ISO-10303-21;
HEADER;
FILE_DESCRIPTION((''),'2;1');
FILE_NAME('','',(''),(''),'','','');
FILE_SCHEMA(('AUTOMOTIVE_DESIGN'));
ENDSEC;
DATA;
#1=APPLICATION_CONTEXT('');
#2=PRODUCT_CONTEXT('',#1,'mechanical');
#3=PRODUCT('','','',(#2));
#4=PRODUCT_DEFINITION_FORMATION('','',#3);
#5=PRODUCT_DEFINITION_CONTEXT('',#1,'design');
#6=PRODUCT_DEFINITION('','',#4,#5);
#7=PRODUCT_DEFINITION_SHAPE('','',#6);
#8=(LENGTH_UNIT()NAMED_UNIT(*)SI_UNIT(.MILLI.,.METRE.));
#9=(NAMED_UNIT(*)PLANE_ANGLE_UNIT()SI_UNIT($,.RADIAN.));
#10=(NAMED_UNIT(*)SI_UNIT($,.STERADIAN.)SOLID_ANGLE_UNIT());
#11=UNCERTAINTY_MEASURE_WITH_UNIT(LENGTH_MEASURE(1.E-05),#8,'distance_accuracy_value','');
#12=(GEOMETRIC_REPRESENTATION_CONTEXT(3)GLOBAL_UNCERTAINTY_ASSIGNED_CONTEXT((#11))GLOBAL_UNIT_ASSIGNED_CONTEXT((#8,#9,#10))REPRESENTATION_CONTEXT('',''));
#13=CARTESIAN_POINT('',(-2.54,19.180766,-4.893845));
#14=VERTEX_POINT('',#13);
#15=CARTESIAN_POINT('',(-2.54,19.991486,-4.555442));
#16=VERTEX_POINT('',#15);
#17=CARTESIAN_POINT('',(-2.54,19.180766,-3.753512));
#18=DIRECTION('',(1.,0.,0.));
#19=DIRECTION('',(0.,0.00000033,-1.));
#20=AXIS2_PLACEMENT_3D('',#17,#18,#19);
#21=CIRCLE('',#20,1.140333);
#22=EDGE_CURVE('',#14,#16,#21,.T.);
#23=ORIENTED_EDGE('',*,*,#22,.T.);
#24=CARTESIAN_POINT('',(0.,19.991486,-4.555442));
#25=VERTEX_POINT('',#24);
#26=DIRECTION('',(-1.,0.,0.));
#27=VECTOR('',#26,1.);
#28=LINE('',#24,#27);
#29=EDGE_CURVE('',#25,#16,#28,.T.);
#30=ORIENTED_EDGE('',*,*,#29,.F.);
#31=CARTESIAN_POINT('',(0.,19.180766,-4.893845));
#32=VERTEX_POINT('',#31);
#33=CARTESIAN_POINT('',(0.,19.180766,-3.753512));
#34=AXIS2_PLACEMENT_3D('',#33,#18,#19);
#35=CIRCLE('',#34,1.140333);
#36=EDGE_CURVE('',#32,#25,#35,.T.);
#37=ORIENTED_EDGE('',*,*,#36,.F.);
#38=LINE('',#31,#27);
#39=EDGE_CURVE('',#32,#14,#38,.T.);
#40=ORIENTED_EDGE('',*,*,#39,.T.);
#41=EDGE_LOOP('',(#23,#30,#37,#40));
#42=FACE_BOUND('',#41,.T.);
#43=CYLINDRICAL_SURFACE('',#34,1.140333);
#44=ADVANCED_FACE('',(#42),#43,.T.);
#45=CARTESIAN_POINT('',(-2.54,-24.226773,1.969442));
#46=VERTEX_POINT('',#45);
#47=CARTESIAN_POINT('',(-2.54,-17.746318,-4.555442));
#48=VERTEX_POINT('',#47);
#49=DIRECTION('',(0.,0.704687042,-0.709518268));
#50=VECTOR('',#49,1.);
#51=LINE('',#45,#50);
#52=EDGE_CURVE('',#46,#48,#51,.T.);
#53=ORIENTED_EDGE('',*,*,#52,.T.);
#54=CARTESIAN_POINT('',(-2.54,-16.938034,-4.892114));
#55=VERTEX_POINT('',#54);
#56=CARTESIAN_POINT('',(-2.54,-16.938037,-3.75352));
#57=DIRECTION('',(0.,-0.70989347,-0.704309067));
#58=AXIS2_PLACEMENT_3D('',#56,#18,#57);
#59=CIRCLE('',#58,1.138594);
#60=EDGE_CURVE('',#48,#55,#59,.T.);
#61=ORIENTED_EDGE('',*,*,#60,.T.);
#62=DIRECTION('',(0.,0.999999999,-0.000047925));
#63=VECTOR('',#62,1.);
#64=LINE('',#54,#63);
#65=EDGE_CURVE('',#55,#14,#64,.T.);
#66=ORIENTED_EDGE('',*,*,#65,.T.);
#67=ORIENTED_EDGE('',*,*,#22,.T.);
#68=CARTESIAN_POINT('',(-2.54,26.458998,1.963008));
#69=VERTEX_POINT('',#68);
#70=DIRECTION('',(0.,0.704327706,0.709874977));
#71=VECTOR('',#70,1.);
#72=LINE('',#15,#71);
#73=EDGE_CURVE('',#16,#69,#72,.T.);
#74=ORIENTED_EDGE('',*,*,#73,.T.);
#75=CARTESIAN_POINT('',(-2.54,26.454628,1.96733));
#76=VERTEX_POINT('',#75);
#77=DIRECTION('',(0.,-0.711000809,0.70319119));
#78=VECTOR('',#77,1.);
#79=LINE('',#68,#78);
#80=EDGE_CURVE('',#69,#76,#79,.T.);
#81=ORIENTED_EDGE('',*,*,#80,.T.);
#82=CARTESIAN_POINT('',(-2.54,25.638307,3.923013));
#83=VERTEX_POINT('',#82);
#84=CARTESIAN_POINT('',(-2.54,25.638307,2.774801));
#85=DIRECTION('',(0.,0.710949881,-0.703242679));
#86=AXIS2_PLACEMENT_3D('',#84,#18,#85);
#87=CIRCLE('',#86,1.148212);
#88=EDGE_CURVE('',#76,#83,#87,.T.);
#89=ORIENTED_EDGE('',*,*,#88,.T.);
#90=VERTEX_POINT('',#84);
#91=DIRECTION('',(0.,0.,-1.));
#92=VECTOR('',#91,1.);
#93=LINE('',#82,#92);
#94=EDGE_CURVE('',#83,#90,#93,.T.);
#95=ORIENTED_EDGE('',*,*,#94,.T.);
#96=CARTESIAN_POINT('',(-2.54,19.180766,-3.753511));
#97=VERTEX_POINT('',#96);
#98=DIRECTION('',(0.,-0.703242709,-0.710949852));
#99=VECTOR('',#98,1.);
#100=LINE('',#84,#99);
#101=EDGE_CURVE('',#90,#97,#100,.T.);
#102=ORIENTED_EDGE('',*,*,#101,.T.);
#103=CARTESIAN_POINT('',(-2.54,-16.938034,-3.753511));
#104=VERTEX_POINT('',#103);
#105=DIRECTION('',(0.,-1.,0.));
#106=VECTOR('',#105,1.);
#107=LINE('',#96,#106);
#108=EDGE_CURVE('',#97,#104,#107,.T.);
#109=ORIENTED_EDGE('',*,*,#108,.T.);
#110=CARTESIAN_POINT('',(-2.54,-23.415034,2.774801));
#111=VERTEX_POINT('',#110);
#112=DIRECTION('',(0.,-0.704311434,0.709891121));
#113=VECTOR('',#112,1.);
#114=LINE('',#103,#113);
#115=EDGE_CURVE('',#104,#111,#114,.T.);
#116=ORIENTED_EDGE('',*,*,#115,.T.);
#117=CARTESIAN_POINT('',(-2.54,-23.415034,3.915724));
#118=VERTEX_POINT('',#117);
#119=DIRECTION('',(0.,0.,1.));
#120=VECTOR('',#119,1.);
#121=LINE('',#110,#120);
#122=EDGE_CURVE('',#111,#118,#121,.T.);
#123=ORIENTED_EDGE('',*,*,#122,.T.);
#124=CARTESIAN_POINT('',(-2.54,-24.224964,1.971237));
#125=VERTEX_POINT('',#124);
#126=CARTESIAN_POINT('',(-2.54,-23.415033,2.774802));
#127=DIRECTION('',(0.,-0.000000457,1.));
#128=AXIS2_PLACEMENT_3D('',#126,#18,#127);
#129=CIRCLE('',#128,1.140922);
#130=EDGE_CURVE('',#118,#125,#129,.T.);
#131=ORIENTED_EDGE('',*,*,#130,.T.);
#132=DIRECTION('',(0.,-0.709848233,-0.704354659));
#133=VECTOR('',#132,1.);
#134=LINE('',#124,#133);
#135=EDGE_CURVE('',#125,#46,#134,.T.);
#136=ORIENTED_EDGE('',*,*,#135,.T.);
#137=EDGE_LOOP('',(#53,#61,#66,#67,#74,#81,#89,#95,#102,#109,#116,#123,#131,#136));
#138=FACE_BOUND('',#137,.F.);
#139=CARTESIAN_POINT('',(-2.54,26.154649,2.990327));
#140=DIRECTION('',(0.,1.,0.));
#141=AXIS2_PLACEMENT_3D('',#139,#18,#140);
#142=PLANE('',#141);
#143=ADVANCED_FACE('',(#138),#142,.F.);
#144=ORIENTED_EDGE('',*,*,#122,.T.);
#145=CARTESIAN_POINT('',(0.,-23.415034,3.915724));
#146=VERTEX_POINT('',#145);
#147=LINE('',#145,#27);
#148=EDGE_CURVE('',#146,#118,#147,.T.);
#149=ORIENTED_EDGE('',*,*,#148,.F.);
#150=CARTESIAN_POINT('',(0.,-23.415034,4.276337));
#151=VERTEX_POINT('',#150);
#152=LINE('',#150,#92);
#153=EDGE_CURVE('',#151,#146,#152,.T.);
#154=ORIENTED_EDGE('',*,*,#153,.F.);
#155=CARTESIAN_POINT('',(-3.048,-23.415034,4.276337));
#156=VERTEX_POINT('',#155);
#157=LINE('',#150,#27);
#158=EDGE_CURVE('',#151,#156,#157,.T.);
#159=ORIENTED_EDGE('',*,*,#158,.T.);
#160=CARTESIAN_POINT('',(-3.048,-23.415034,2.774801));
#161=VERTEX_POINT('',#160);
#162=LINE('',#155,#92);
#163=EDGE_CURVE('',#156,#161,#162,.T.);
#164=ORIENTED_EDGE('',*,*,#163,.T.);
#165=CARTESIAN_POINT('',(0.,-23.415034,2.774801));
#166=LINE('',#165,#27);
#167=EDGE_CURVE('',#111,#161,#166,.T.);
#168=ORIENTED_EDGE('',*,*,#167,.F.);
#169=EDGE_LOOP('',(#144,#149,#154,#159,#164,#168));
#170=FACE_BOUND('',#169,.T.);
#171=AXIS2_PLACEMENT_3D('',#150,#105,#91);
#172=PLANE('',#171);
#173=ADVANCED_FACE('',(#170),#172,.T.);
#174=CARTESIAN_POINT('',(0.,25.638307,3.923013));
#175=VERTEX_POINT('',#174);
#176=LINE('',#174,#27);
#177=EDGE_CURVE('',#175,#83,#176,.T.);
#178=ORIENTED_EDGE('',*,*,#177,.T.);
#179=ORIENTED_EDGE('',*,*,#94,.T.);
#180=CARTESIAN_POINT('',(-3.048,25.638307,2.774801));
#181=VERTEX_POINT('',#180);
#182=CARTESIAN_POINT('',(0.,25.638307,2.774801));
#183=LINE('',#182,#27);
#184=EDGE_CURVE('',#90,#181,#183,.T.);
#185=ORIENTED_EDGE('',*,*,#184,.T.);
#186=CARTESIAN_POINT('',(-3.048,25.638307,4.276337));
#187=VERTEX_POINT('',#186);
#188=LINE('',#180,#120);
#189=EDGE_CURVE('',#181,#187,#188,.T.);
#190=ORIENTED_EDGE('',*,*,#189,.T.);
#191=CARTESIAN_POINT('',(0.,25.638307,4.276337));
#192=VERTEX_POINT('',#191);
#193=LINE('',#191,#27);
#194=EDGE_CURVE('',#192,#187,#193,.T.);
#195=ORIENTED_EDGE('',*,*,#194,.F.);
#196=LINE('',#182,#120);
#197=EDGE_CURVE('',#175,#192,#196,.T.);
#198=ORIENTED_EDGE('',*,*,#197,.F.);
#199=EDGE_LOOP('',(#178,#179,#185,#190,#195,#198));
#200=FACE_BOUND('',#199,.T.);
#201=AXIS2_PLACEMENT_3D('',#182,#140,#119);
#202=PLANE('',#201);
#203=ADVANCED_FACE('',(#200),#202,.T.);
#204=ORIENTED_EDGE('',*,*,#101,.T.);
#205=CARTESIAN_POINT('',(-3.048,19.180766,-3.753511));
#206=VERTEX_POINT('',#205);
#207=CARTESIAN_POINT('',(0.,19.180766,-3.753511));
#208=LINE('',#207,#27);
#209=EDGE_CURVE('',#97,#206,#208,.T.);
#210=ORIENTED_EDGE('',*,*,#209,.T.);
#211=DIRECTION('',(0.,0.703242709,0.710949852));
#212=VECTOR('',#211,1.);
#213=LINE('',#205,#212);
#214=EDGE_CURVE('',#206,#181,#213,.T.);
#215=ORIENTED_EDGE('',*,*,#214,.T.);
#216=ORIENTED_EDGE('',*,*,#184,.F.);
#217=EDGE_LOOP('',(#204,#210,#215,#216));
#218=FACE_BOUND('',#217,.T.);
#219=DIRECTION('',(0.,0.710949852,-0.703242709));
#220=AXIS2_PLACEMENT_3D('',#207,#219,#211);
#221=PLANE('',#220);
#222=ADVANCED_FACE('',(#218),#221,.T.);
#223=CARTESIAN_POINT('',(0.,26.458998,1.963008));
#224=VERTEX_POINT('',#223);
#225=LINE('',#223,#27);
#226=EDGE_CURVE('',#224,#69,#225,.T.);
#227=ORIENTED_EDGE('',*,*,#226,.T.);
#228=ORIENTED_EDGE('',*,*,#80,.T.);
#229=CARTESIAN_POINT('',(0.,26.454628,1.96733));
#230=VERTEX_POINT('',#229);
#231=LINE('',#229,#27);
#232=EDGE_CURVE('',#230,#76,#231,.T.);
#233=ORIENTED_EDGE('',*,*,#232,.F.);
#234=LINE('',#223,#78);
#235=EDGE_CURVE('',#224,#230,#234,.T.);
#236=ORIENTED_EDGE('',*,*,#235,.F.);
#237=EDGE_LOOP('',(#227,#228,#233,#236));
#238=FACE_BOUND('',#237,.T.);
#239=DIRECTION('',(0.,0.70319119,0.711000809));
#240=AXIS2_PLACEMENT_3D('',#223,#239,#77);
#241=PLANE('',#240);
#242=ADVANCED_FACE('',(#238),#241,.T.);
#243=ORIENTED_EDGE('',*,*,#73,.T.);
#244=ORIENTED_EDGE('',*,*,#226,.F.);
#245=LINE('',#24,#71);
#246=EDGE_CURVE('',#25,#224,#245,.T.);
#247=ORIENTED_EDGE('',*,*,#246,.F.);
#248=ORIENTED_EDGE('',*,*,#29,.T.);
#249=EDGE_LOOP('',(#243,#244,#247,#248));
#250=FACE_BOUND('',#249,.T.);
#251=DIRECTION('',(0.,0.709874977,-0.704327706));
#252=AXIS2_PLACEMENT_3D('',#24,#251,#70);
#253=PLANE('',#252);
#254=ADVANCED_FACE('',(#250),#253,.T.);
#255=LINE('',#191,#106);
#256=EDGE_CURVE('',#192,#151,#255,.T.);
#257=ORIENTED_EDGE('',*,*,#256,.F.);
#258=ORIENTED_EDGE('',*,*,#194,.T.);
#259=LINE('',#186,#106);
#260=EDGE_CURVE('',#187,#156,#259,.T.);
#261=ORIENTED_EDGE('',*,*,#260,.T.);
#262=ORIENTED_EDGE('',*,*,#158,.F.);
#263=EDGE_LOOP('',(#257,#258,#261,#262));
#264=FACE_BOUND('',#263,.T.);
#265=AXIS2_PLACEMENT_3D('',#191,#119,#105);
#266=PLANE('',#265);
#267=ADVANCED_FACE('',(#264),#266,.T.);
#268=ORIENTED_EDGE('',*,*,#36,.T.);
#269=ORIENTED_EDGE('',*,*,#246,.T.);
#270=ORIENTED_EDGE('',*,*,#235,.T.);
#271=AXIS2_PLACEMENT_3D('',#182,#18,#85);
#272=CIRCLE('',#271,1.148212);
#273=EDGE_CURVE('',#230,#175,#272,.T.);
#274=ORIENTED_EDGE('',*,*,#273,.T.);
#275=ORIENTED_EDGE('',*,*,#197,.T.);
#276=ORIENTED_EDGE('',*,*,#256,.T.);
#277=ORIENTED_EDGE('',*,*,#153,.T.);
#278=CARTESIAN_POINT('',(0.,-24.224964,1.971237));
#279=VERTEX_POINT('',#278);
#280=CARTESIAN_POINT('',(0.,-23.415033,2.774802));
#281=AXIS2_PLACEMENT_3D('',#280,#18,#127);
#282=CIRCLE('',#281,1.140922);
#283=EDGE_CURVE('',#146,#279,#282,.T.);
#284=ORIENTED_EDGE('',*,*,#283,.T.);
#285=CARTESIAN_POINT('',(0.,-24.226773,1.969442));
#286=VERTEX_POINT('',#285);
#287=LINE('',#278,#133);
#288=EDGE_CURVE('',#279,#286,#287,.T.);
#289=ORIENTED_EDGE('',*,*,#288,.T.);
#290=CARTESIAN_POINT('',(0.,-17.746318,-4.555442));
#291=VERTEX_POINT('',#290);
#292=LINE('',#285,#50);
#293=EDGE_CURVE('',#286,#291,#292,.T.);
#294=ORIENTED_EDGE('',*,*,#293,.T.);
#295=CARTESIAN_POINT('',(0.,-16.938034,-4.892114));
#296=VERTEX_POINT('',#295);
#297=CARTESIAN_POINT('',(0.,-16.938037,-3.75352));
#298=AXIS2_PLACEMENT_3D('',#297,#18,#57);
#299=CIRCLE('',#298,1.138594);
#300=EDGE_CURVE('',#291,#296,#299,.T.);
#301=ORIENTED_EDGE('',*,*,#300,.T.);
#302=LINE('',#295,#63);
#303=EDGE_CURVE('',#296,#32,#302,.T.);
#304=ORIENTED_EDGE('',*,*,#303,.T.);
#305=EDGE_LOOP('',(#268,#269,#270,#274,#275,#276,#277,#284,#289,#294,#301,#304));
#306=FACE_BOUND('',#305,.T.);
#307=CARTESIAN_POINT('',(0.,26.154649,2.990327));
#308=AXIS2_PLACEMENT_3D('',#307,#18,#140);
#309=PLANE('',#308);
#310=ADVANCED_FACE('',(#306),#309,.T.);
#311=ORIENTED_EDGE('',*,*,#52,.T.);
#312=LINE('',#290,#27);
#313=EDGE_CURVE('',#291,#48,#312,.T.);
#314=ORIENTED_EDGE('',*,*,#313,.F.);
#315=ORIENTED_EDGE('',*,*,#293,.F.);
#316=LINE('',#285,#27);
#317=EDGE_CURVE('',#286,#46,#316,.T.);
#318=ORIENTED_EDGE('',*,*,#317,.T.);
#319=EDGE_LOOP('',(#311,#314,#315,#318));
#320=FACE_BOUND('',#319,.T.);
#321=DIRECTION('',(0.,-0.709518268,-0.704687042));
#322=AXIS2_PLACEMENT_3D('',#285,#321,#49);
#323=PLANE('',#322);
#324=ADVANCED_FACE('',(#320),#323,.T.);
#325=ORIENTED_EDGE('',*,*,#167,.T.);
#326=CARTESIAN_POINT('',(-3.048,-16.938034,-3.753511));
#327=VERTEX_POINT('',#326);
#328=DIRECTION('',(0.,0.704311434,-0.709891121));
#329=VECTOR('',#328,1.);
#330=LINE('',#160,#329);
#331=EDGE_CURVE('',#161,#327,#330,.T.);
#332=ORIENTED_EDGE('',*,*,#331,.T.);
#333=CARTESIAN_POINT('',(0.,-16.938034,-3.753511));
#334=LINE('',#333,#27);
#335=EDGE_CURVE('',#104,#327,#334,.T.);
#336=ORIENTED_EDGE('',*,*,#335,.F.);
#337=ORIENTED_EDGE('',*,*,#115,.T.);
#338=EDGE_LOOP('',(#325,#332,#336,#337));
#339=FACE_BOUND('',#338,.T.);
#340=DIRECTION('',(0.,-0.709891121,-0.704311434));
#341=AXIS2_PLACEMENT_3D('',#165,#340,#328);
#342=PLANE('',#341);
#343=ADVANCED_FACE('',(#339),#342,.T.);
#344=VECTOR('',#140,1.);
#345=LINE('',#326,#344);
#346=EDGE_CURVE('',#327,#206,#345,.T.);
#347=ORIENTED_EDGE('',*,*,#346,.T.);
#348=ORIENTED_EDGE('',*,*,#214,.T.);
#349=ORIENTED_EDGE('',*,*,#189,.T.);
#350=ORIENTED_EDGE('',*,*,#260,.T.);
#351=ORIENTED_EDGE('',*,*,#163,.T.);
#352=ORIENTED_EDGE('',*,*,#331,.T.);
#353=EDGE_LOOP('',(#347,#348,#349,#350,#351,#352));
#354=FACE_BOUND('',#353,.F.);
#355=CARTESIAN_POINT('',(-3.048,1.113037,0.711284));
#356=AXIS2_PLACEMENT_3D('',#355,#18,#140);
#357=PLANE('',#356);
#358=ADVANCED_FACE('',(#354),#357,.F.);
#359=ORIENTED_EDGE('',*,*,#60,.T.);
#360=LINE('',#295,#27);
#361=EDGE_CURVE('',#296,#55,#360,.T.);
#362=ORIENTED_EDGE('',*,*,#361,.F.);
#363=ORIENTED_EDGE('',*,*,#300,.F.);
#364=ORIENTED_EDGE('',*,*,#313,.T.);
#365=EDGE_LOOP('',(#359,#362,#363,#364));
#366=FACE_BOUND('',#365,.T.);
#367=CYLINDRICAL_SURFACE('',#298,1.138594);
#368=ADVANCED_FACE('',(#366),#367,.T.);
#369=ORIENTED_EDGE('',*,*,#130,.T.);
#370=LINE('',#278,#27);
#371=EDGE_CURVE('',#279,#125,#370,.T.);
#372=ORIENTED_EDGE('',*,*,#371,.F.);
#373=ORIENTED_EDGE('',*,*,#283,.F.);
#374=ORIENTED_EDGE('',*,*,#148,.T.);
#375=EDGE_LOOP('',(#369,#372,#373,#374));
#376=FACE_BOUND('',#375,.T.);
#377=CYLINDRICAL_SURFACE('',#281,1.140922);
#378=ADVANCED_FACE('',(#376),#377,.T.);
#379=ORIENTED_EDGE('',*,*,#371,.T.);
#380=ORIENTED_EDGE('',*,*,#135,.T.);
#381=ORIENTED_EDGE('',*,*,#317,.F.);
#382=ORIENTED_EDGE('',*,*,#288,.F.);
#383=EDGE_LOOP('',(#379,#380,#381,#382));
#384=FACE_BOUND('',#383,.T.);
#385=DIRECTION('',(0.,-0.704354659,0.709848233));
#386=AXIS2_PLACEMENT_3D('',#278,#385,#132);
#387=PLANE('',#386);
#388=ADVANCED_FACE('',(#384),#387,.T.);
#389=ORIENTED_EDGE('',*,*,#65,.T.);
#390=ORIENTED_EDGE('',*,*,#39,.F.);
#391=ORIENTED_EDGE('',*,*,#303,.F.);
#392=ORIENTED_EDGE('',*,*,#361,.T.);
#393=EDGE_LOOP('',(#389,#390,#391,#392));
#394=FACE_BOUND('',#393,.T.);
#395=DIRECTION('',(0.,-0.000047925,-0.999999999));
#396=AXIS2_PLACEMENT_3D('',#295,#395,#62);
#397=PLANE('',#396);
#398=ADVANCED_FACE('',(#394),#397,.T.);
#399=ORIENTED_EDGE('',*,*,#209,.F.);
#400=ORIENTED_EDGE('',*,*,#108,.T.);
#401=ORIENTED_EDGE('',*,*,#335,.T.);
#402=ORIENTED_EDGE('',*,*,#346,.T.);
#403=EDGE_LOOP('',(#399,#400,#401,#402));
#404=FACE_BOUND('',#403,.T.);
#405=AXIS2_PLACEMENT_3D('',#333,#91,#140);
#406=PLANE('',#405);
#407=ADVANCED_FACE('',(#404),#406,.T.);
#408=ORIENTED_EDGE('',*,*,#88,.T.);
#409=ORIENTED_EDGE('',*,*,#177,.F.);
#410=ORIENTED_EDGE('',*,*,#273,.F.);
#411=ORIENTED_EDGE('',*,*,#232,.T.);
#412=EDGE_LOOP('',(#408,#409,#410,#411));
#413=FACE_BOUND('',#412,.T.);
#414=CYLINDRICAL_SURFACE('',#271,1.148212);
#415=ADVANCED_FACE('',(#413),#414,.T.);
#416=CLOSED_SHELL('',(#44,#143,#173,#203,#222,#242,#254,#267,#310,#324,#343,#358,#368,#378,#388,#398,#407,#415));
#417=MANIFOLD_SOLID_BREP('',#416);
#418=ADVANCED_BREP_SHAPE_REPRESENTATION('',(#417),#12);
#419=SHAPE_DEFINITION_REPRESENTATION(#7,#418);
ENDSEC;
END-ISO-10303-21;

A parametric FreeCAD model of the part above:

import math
import FreeCAD as App
import Part
import Sketcher

V = App.Vector
Q = App.Units.Quantity

doc = App.newDocument("Part")
body = doc.addObject("PartDesign::Body", "Body")

sketch1 = body.newObject("Sketcher::SketchObject", "Sketch")
sketch1.AttachmentSupport = (doc.getObject("YZ_Plane"), [""])
sketch1.MapMode = "FlatFace"
sketch1.addGeometry(Part.LineSegment(V(-16.938034, -3.753511, 0), V(19.180766, -3.753511, 0)), False)
sketch1.addGeometry(Part.LineSegment(V(19.180766, -3.753511, 0), V(25.638307, 2.774801, 0)), False)
sketch1.addGeometry(Part.LineSegment(V(25.638307, 2.774801, 0), V(25.638307, 4.276337, 0)), False)
sketch1.addGeometry(Part.LineSegment(V(25.638307, 4.276337, 0), V(-23.415034, 4.276337, 0)), False)
sketch1.addGeometry(Part.LineSegment(V(-23.415034, 4.276337, 0), V(-23.415034, 2.774801, 0)), False)
sketch1.addGeometry(Part.LineSegment(V(-23.415034, 2.774801, 0), V(-16.938034, -3.753511, 0)), False)
sketch1.addConstraint(Sketcher.Constraint("Coincident", 0, 2, 1, 1))
sketch1.addConstraint(Sketcher.Constraint("Coincident", 1, 2, 2, 1))
sketch1.addConstraint(Sketcher.Constraint("Coincident", 2, 2, 3, 1))
sketch1.addConstraint(Sketcher.Constraint("Coincident", 3, 2, 4, 1))
sketch1.addConstraint(Sketcher.Constraint("Coincident", 4, 2, 5, 1))
sketch1.addConstraint(Sketcher.Constraint("Coincident", 5, 2, 0, 1))
sketch1.addConstraint(Sketcher.Constraint("Horizontal", 0))
sketch1.addConstraint(Sketcher.Constraint("Vertical", 2))
sketch1.addConstraint(Sketcher.Constraint("Horizontal", 3))
sketch1.addConstraint(Sketcher.Constraint("Vertical", 4))
sketch1.addConstraint(Sketcher.Constraint("Horizontal", 1, 2, 4, 2))
sketch1.addConstraint(Sketcher.Constraint("DistanceX", 0, 1, 0, 2, Q("1.422 in")))
sketch1.addConstraint(Sketcher.Constraint("DistanceX", 3, 2, 0, 2, Q("1.677 in")))
sketch1.addConstraint(Sketcher.Constraint("DistanceX", 3, 2, 3, 1, 49.053341))
sketch1.addConstraint(Sketcher.Constraint("DistanceY", -1, 1, 1, 2, 2.774801))
sketch1.addConstraint(Sketcher.Constraint("Distance", 1, 9.182521))
sketch1.addConstraint(Sketcher.Constraint("DistanceY", 2, 1, 2, 2, 1.501536))
sketch1.addConstraint(Sketcher.Constraint("DistanceX", -1, 1, 0, 2, 19.180766))
pad1 = body.newObject("PartDesign::Pad", "Pad")
pad1.Profile = sketch1
pad1.Length = Q("0.12 in")
pad1.Reversed = True

sketch2 = body.newObject("Sketcher::SketchObject", "Sketch001")
sketch2.AttachmentSupport = (doc.getObject("YZ_Plane"), [""])
sketch2.MapMode = "FlatFace"
sketch2.addGeometry(Part.LineSegment(V(25.638307, 3.923013, 0), V(25.638307, 2.774801, 0)), False)
sketch2.addGeometry(Part.LineSegment(V(25.638307, 2.774801, 0), V(19.180766, -3.753511, 0)), False)
sketch2.addGeometry(Part.LineSegment(V(19.180766, -3.753511, 0), V(-16.938034, -3.753511, 0)), False)
sketch2.addGeometry(Part.LineSegment(V(-16.938034, -3.753511, 0), V(-23.415034, 2.774801, 0)), False)
sketch2.addGeometry(Part.LineSegment(V(-23.415034, 2.774801, 0), V(-23.415034, 3.915724, 0)), False)
sketch2.addGeometry(Part.ArcOfCircle(Part.Circle(V(-23.415033, 2.774802, 0), V(0, 0, 1), 1.140922), math.radians(90.000026), math.radians(224.773949)), False)
sketch2.addGeometry(Part.LineSegment(V(-24.224964, 1.971237, 0), V(-24.226773, 1.969442, 0)), False)
sketch2.addGeometry(Part.LineSegment(V(-24.226773, 1.969442, 0), V(-17.746318, -4.555442, 0)), False)
sketch2.addGeometry(Part.ArcOfCircle(Part.Circle(V(-16.938037, -3.75352, 0), V(0, 0, 1), 1.138594), math.radians(-135.226248), math.radians(-89.99983)), False)
sketch2.addGeometry(Part.LineSegment(V(-16.938034, -4.892114, 0), V(19.180766, -4.893845, 0)), False)
sketch2.addGeometry(Part.ArcOfCircle(Part.Circle(V(19.180766, -3.753512, 0), V(0, 0, 1), 1.140333), math.radians(-89.999981), math.radians(-44.687685)), False)
sketch2.addGeometry(Part.LineSegment(V(19.991486, -4.555442, 0), V(26.458998, 1.963008, 0)), False)
sketch2.addGeometry(Part.LineSegment(V(26.458998, 1.963008, 0), V(26.454628, 1.96733, 0)), False)
sketch2.addGeometry(Part.ArcOfCircle(Part.Circle(V(25.638307, 2.774801, 0), V(0, 0, 1), 1.148212), math.radians(-44.687747), math.radians(90.000005)), False)
sketch2.addConstraint(Sketcher.Constraint("Coincident", 0, 2, 1, 1))
sketch2.addConstraint(Sketcher.Constraint("Coincident", 1, 2, 2, 1))
sketch2.addConstraint(Sketcher.Constraint("Coincident", 2, 2, 3, 1))
sketch2.addConstraint(Sketcher.Constraint("Coincident", 3, 2, 4, 1))
sketch2.addConstraint(Sketcher.Constraint("Coincident", 4, 2, 5, 1))
sketch2.addConstraint(Sketcher.Constraint("Coincident", 5, 2, 6, 1))
sketch2.addConstraint(Sketcher.Constraint("Coincident", 6, 2, 7, 1))
sketch2.addConstraint(Sketcher.Constraint("Coincident", 7, 2, 8, 1))
sketch2.addConstraint(Sketcher.Constraint("Coincident", 8, 2, 9, 1))
sketch2.addConstraint(Sketcher.Constraint("Coincident", 9, 2, 10, 1))
sketch2.addConstraint(Sketcher.Constraint("Coincident", 10, 2, 11, 1))
sketch2.addConstraint(Sketcher.Constraint("Coincident", 11, 2, 12, 1))
sketch2.addConstraint(Sketcher.Constraint("Coincident", 12, 2, 13, 1))
sketch2.addConstraint(Sketcher.Constraint("Coincident", 13, 2, 0, 1))
sketch2.addConstraint(Sketcher.Constraint("Vertical", 0))
sketch2.addConstraint(Sketcher.Constraint("Horizontal", 2))
sketch2.addConstraint(Sketcher.Constraint("Vertical", 4))
sketch2.addConstraint(Sketcher.Constraint("Coincident", 0, 2, 13, 3))
sketch2.addConstraint(Sketcher.Constraint("Coincident", 1, 2, 10, 3))
sketch2.addConstraint(Sketcher.Constraint("Coincident", 2, 2, 8, 3))
sketch2.addConstraint(Sketcher.Constraint("Coincident", 3, 2, 5, 3))
sketch2.addConstraint(Sketcher.Constraint("Horizontal", 5, 3, 13, 3))
sketch2.addConstraint(Sketcher.Constraint("Horizontal", 7, 2, 10, 2))
sketch2.addConstraint(Sketcher.Constraint("Vertical", 2, 2, 8, 2))
sketch2.addConstraint(Sketcher.Constraint("Vertical", 1, 2, 9, 2))
sketch2.addConstraint(Sketcher.Constraint("Equal", 3, 7))
sketch2.addConstraint(Sketcher.Constraint("DistanceX", 2, 2, 2, 1, Q("1.422 in")))
sketch2.addConstraint(Sketcher.Constraint("Radius", 13, 1.148212))
sketch2.addConstraint(Sketcher.Constraint("DistanceX", 5, 3, 8, 3, Q("0.2549998 in")))
sketch2.addConstraint(Sketcher.Constraint("Radius", 5, 1.140922))
sketch2.addConstraint(Sketcher.Constraint("Radius", 8, 1.138594))
sketch2.addConstraint(Sketcher.Constraint("Radius", 10, 1.140333))
sketch2.addConstraint(Sketcher.Constraint("DistanceY", -1, 1, 5, 3, 2.774802))
sketch2.addConstraint(Sketcher.Constraint("DistanceX", -1, 1, 11, 2, 26.458998))
sketch2.addConstraint(Sketcher.Constraint("Distance", 1, 9.182521))
sketch2.addConstraint(Sketcher.Constraint("Distance", 6, 0.002548))
sketch2.addConstraint(Sketcher.Constraint("DistanceY", 8, 3, -1, 1, 3.75352))
sketch2.addConstraint(Sketcher.Constraint("DistanceY", -1, 1, 6, 2, 1.969442))
sketch2.addConstraint(Sketcher.Constraint("DistanceY", -1, 1, 11, 2, 1.963008))
sketch2.addConstraint(Sketcher.Constraint("DistanceY", -1, 1, 12, 2, 1.96733))
sketch2.addConstraint(Sketcher.Constraint("DistanceX", 5, 2, 3, 2, 0.80993))
sketch2.addConstraint(Sketcher.Constraint("DistanceX", 0, 2, 11, 2, 0.820691))
pad2 = body.newObject("PartDesign::Pad", "Pad001")
pad2.Profile = sketch2
pad2.Length = Q("0.1 in")
pad2.Reversed = True

doc.recompute()
